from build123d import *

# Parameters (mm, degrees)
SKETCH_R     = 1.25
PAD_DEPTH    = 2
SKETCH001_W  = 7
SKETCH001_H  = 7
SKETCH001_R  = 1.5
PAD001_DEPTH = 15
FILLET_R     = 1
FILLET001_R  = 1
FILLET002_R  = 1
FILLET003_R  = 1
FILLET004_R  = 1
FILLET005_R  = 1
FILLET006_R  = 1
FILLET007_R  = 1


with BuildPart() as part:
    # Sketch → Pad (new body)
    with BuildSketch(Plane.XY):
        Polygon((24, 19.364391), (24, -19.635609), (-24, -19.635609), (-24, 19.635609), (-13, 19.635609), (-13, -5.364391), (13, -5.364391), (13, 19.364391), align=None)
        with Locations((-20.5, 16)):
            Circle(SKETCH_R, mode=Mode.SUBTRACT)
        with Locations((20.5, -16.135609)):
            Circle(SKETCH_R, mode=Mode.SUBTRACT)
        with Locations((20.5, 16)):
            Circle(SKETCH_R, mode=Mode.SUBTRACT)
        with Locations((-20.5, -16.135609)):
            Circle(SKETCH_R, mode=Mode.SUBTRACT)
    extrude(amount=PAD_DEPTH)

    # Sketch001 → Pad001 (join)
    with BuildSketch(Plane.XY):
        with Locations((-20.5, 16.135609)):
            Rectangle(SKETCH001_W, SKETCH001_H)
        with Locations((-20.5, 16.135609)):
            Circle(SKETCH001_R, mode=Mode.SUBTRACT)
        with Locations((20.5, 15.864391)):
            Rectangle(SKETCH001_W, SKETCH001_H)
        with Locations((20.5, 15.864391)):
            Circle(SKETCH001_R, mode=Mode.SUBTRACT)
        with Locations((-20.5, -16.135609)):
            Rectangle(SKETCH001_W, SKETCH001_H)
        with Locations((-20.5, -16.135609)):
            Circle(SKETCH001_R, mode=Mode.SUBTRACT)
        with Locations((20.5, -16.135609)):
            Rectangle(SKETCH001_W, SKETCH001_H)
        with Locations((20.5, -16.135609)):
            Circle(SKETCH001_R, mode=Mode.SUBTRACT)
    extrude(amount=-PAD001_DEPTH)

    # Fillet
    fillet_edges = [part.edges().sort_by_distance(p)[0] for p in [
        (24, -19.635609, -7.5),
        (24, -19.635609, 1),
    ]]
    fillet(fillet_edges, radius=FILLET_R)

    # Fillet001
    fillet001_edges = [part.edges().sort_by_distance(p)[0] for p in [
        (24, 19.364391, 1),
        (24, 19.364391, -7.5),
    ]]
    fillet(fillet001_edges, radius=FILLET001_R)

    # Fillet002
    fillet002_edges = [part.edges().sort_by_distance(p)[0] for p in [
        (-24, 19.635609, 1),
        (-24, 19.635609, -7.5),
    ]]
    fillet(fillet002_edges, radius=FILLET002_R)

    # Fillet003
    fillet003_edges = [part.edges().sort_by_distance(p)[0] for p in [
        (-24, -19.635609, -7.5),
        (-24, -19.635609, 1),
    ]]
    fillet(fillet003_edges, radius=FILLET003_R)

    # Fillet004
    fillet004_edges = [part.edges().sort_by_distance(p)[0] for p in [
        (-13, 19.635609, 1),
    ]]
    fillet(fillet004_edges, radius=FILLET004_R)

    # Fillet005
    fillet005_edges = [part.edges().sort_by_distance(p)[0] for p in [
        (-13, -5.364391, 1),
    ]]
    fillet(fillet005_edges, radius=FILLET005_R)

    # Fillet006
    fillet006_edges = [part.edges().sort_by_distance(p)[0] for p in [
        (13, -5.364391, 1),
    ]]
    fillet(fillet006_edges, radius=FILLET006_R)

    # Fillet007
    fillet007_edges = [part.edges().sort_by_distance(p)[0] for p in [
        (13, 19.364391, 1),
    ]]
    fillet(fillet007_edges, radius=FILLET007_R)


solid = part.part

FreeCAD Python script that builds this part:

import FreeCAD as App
import Part
import Sketcher
from FreeCAD import Vector


def edges_at(feature, points):
    """Names of the edges that pass closest to the given points."""
    edges = feature.Shape.Edges
    near = lambda p: min(range(len(edges)), key=lambda i: edges[i].distToShape(Part.Vertex(*p))[0])
    return sorted({f"Edge{near(p) + 1}" for p in points})

doc = App.newDocument("Part")
body = doc.addObject("PartDesign::Body", "Body")

# Sketch on XY plane
sketch1 = doc.addObject("Sketcher::SketchObject", "Sketch")
body.addObject(sketch1)
sketch1.AttachmentSupport = (doc.XY_Plane, [""])
sketch1.MapMode = "FlatFace"
sketch1.addGeometry(Part.LineSegment(Vector(24, -19.6, 0), Vector(24, 19.4, 0)), False)
sketch1.addGeometry(Part.LineSegment(Vector(24, 19.4, 0), Vector(13, 19.4, 0)), False)
sketch1.addGeometry(Part.LineSegment(Vector(13, 19.4, 0), Vector(13, -5.4, 0)), False)
sketch1.addGeometry(Part.LineSegment(Vector(13, -5.4, 0), Vector(-13, -5.4, 0)), False)
sketch1.addGeometry(Part.LineSegment(Vector(-13, -5.4, 0), Vector(-13, 19.6, 0)), False)
sketch1.addGeometry(Part.LineSegment(Vector(-13, 19.6, 0), Vector(-24, 19.6, 0)), False)
sketch1.addGeometry(Part.LineSegment(Vector(-24, 19.6, 0), Vector(-24, -19.6, 0)), False)
sketch1.addGeometry(Part.LineSegment(Vector(-24, -19.6, 0), Vector(24, -19.6, 0)), False)
sketch1.addGeometry(Part.Circle(Vector(20.5, -16.1, 0), Vector(0, 0, 1), 1.2), False)
sketch1.addGeometry(Part.Circle(Vector(-20.5, -16.1, 0), Vector(0, 0, 1), 1.2), False)
sketch1.addGeometry(Part.Circle(Vector(20.5, 16, 0), Vector(0, 0, 1), 1.2), False)
sketch1.addGeometry(Part.Circle(Vector(-20.5, 16, 0), Vector(0, 0, 1), 1.2), False)
sketch1.addConstraint(Sketcher.Constraint("Coincident", 0, 2, 1, 1))
sketch1.addConstraint(Sketcher.Constraint("Coincident", 1, 2, 2, 1))
sketch1.addConstraint(Sketcher.Constraint("Coincident", 2, 2, 3, 1))
sketch1.addConstraint(Sketcher.Constraint("Coincident", 3, 2, 4, 1))
sketch1.addConstraint(Sketcher.Constraint("Coincident", 4, 2, 5, 1))
sketch1.addConstraint(Sketcher.Constraint("Coincident", 5, 2, 6, 1))
sketch1.addConstraint(Sketcher.Constraint("Coincident", 6, 2, 7, 1))
sketch1.addConstraint(Sketcher.Constraint("Coincident", 7, 2, 0, 1))
sketch1.addConstraint(Sketcher.Constraint("Vertical", 0))
sketch1.addConstraint(Sketcher.Constraint("Horizontal", 1))
sketch1.addConstraint(Sketcher.Constraint("Vertical", 2))
sketch1.addConstraint(Sketcher.Constraint("Horizontal", 3))
sketch1.addConstraint(Sketcher.Constraint("Vertical", 4))
sketch1.addConstraint(Sketcher.Constraint("Horizontal", 5))
sketch1.addConstraint(Sketcher.Constraint("Vertical", 6))
sketch1.addConstraint(Sketcher.Constraint("Horizontal", 7))
sketch1.addConstraint(Sketcher.Constraint("Equal", 8, 9))
sketch1.addConstraint(Sketcher.Constraint("Equal", 9, 10))
sketch1.addConstraint(Sketcher.Constraint("Equal", 10, 11))
sketch1.addConstraint(Sketcher.Constraint("Symmetric", 5, 2, 7, 2, -1, 1))
sketch1.addConstraint(Sketcher.Constraint("Symmetric", 8, 3, 9, 3, -2))
sketch1.addConstraint(Sketcher.Constraint("Symmetric", 10, 3, 11, 3, -2))
sketch1.addConstraint(Sketcher.Constraint("Vertical", 8, 3, 10, 3))
sketch1.addConstraint(Sketcher.Constraint("Equal", 1, 5))
sketch1.addConstraint(Sketcher.Constraint("Diameter", 8, 2.5))
sketch1.addConstraint(Sketcher.Constraint("DistanceX", 1, 2, 1, 1, 11.0))
sketch1.addConstraint(Sketcher.Constraint("DistanceX", 3, 2, 3, 1, 26.0))
sketch1.addConstraint(Sketcher.Constraint("DistanceY", 0, 1, 0, 2, 39.0))
sketch1.addConstraint(Sketcher.Constraint("DistanceY", 4, 1, 4, 2, 25.0))
sketch1.addConstraint(Sketcher.Constraint("DistanceY", -1, 1, 10, 3, 16.0))
sketch1.addConstraint(Sketcher.Constraint("DistanceX", 9, 3, 8, 3, 41.0))
sketch1.addConstraint(Sketcher.Constraint("DistanceY", 8, 3, 0, 2, 35.5))
sketch1.addConstraint(Sketcher.Constraint("DistanceY", 2, 2, 2, 1, 24.728782))
pad1 = doc.addObject("PartDesign::Pad", "Pad")
body.addObject(pad1)
pad1.Profile = sketch1
pad1.Length = 2

# Sketch on XY plane
sketch2 = doc.addObject("Sketcher::SketchObject", "Sketch001")
body.addObject(sketch2)
sketch2.AttachmentSupport = (doc.XY_Plane, [""])
sketch2.MapMode = "FlatFace"
sketch2.addGeometry(Part.LineSegment(Vector(-24, 19.6, 0), Vector(-24, 12.6, 0)), False)
sketch2.addGeometry(Part.LineSegment(Vector(-24, 12.6, 0), Vector(-17, 12.6, 0)), False)
sketch2.addGeometry(Part.LineSegment(Vector(-17, 12.6, 0), Vector(-17, 19.6, 0)), False)
sketch2.addGeometry(Part.LineSegment(Vector(-17, 19.6, 0), Vector(-24, 19.6, 0)), False)
sketch2.addGeometry(Part.Circle(Vector(-20.5, 16.1, 0), Vector(0, 0, 1), 1.5), False)
sketch2.addGeometry(Part.LineSegment(Vector(17, 19.4, 0), Vector(17, 12.4, 0)), False)
sketch2.addGeometry(Part.LineSegment(Vector(17, 12.4, 0), Vector(24, 12.4, 0)), False)
sketch2.addGeometry(Part.LineSegment(Vector(24, 12.4, 0), Vector(24, 19.4, 0)), False)
sketch2.addGeometry(Part.LineSegment(Vector(24, 19.4, 0), Vector(17, 19.4, 0)), False)
sketch2.addGeometry(Part.Circle(Vector(20.5, 15.9, 0), Vector(0, 0, 1), 1.5), False)
sketch2.addGeometry(Part.LineSegment(Vector(-24, -12.6, 0), Vector(-24, -19.6, 0)), False)
sketch2.addGeometry(Part.LineSegment(Vector(-24, -19.6, 0), Vector(-17, -19.6, 0)), False)
sketch2.addGeometry(Part.LineSegment(Vector(-17, -19.6, 0), Vector(-17, -12.6, 0)), False)
sketch2.addGeometry(Part.LineSegment(Vector(-17, -12.6, 0), Vector(-24, -12.6, 0)), False)
sketch2.addGeometry(Part.Circle(Vector(-20.5, -16.1, 0), Vector(0, 0, 1), 1.5), False)
sketch2.addGeometry(Part.LineSegment(Vector(17, -12.6, 0), Vector(17, -19.6, 0)), False)
sketch2.addGeometry(Part.LineSegment(Vector(17, -19.6, 0), Vector(24, -19.6, 0)), False)
sketch2.addGeometry(Part.LineSegment(Vector(24, -19.6, 0), Vector(24, -12.6, 0)), False)
sketch2.addGeometry(Part.LineSegment(Vector(24, -12.6, 0), Vector(17, -12.6, 0)), False)
sketch2.addGeometry(Part.Circle(Vector(20.5, -16.1, 0), Vector(0, 0, 1), 1.5), False)
sketch2.addConstraint(Sketcher.Constraint("Coincident", 0, 2, 1, 1))
sketch2.addConstraint(Sketcher.Constraint("Coincident", 1, 2, 2, 1))
sketch2.addConstraint(Sketcher.Constraint("Coincident", 2, 2, 3, 1))
sketch2.addConstraint(Sketcher.Constraint("Coincident", 3, 2, 0, 1))
sketch2.addConstraint(Sketcher.Constraint("Coincident", 5, 2, 6, 1))
sketch2.addConstraint(Sketcher.Constraint("Coincident", 6, 2, 7, 1))
sketch2.addConstraint(Sketcher.Constraint("Coincident", 7, 2, 8, 1))
sketch2.addConstraint(Sketcher.Constraint("Coincident", 8, 2, 5, 1))
sketch2.addConstraint(Sketcher.Constraint("Coincident", 10, 2, 11, 1))
sketch2.addConstraint(Sketcher.Constraint("Coincident", 11, 2, 12, 1))
sketch2.addConstraint(Sketcher.Constraint("Coincident", 12, 2, 13, 1))
sketch2.addConstraint(Sketcher.Constraint("Coincident", 13, 2, 10, 1))
sketch2.addConstraint(Sketcher.Constraint("Coincident", 15, 2, 16, 1))
sketch2.addConstraint(Sketcher.Constraint("Coincident", 16, 2, 17, 1))
sketch2.addConstraint(Sketcher.Constraint("Coincident", 17, 2, 18, 1))
sketch2.addConstraint(Sketcher.Constraint("Coincident", 18, 2, 15, 1))
sketch2.addConstraint(Sketcher.Constraint("Vertical", 0))
sketch2.addConstraint(Sketcher.Constraint("Horizontal", 1))
sketch2.addConstraint(Sketcher.Constraint("Vertical", 2))
sketch2.addConstraint(Sketcher.Constraint("Horizontal", 3))
sketch2.addConstraint(Sketcher.Constraint("Vertical", 5))
sketch2.addConstraint(Sketcher.Constraint("Horizontal", 6))
sketch2.addConstraint(Sketcher.Constraint("Vertical", 7))
sketch2.addConstraint(Sketcher.Constraint("Horizontal", 8))
sketch2.addConstraint(Sketcher.Constraint("Vertical", 10))
sketch2.addConstraint(Sketcher.Constraint("Horizontal", 11))
sketch2.addConstraint(Sketcher.Constraint("Vertical", 12))
sketch2.addConstraint(Sketcher.Constraint("Horizontal", 13))
sketch2.addConstraint(Sketcher.Constraint("Vertical", 15))
sketch2.addConstraint(Sketcher.Constraint("Horizontal", 16))
sketch2.addConstraint(Sketcher.Constraint("Vertical", 17))
sketch2.addConstraint(Sketcher.Constraint("Horizontal", 18))
sketch2.addConstraint(Sketcher.Constraint("Equal", 4, 9))
sketch2.addConstraint(Sketcher.Constraint("Equal", 9, 14))
sketch2.addConstraint(Sketcher.Constraint("Equal", 14, 19))
sketch2.addConstraint(Sketcher.Constraint("Symmetric", 4, 3, 19, 3, -1, 1))
sketch2.addConstraint(Sketcher.Constraint("Symmetric", 2, 2, 15, 2, -1, 1))
sketch2.addConstraint(Sketcher.Constraint("Symmetric", 0, 2, 17, 2, -1, 1))
sketch2.addConstraint(Sketcher.Constraint("Symmetric", 14, 3, 19, 3, -2))
sketch2.addConstraint(Sketcher.Constraint("Symmetric", 11, 2, 15, 2, -2))
sketch2.addConstraint(Sketcher.Constraint("Symmetric", 13, 2, 17, 2, -2))
sketch2.addConstraint(Sketcher.Constraint("Vertical", 9, 3, 19, 3))
sketch2.addConstraint(Sketcher.Constraint("Vertical", 8, 2, 15, 2))
sketch2.addConstraint(Sketcher.Constraint("Vertical", 7, 2, 16, 2))
sketch2.addConstraint(Sketcher.Constraint("Equal", 18, 0))
sketch2.addConstraint(Sketcher.Constraint("Equal", 2, 5))
sketch2.addConstraint(Sketcher.Constraint("Diameter", 4, 3.0))
sketch2.addConstraint(Sketcher.Constraint("DistanceX", 1, 1, 1, 2, 7.0))
sketch2.addConstraint(Sketcher.Constraint("DistanceX", 0, 2, -1, 1, 24.0))
sketch2.addConstraint(Sketcher.Constraint("DistanceX", 4, 3, 9, 3, 41.0))
sketch2.addConstraint(Sketcher.Constraint("DistanceY", 14, 3, 9, 3, 32.0))
sketch2.addConstraint(Sketcher.Constraint("DistanceY", 15, 2, 5, 2, 32.0))
sketch2.addConstraint(Sketcher.Constraint("DistanceY", 0, 2, 4, 3, 3.5))
sketch2.addConstraint(Sketcher.Constraint("DistanceY", -1, 1, 4, 3, 16.135609))
pad2 = doc.addObject("PartDesign::Pad", "Pad001")
body.addObject(pad2)
pad2.Profile = sketch2
pad2.Length = 15
pad2.Reversed = True
doc.recompute()

fillet = doc.addObject("PartDesign::Fillet", "Fillet")
body.addObject(fillet)
fillet.Base = (pad2, edges_at(pad2, [(24, -19.636, -6.5), (24, -19.636, -6.5)]))
fillet.Radius = 1
doc.recompute()

fillet2 = doc.addObject("PartDesign::Fillet", "Fillet001")
body.addObject(fillet2)
fillet2.Base = (fillet, edges_at(fillet, [(24, 19.364, -6.5), (24, 19.364, -6.5)]))
fillet2.Radius = 1
doc.recompute()

fillet3 = doc.addObject("PartDesign::Fillet", "Fillet002")
body.addObject(fillet3)
fillet3.Base = (fillet2, edges_at(fillet2, [(-24, 19.636, -6.5), (-24, 19.636, -6.5)]))
fillet3.Radius = 1
doc.recompute()

fillet4 = doc.addObject("PartDesign::Fillet", "Fillet003")
body.addObject(fillet4)
fillet4.Base = (fillet3, edges_at(fillet3, [(-24, -19.636, -6.5), (-24, -19.636, -6.5)]))
fillet4.Radius = 1
doc.recompute()

fillet5 = doc.addObject("PartDesign::Fillet", "Fillet004")
body.addObject(fillet5)
fillet5.Base = (fillet4, edges_at(fillet4, [(-13, 19.636, 1)]))
fillet5.Radius = 1
doc.recompute()

fillet6 = doc.addObject("PartDesign::Fillet", "Fillet005")
body.addObject(fillet6)
fillet6.Base = (fillet5, edges_at(fillet5, [(-13, -5.364, 1)]))
fillet6.Radius = 1
doc.recompute()

fillet7 = doc.addObject("PartDesign::Fillet", "Fillet006")
body.addObject(fillet7)
fillet7.Base = (fillet6, edges_at(fillet6, [(13, -5.364, 1)]))
fillet7.Radius = 1
doc.recompute()

fillet8 = doc.addObject("PartDesign::Fillet", "Fillet007")
body.addObject(fillet8)
fillet8.Base = (fillet7, edges_at(fillet7, [(13, 19.364, 1)]))
fillet8.Radius = 1

doc.recompute()
